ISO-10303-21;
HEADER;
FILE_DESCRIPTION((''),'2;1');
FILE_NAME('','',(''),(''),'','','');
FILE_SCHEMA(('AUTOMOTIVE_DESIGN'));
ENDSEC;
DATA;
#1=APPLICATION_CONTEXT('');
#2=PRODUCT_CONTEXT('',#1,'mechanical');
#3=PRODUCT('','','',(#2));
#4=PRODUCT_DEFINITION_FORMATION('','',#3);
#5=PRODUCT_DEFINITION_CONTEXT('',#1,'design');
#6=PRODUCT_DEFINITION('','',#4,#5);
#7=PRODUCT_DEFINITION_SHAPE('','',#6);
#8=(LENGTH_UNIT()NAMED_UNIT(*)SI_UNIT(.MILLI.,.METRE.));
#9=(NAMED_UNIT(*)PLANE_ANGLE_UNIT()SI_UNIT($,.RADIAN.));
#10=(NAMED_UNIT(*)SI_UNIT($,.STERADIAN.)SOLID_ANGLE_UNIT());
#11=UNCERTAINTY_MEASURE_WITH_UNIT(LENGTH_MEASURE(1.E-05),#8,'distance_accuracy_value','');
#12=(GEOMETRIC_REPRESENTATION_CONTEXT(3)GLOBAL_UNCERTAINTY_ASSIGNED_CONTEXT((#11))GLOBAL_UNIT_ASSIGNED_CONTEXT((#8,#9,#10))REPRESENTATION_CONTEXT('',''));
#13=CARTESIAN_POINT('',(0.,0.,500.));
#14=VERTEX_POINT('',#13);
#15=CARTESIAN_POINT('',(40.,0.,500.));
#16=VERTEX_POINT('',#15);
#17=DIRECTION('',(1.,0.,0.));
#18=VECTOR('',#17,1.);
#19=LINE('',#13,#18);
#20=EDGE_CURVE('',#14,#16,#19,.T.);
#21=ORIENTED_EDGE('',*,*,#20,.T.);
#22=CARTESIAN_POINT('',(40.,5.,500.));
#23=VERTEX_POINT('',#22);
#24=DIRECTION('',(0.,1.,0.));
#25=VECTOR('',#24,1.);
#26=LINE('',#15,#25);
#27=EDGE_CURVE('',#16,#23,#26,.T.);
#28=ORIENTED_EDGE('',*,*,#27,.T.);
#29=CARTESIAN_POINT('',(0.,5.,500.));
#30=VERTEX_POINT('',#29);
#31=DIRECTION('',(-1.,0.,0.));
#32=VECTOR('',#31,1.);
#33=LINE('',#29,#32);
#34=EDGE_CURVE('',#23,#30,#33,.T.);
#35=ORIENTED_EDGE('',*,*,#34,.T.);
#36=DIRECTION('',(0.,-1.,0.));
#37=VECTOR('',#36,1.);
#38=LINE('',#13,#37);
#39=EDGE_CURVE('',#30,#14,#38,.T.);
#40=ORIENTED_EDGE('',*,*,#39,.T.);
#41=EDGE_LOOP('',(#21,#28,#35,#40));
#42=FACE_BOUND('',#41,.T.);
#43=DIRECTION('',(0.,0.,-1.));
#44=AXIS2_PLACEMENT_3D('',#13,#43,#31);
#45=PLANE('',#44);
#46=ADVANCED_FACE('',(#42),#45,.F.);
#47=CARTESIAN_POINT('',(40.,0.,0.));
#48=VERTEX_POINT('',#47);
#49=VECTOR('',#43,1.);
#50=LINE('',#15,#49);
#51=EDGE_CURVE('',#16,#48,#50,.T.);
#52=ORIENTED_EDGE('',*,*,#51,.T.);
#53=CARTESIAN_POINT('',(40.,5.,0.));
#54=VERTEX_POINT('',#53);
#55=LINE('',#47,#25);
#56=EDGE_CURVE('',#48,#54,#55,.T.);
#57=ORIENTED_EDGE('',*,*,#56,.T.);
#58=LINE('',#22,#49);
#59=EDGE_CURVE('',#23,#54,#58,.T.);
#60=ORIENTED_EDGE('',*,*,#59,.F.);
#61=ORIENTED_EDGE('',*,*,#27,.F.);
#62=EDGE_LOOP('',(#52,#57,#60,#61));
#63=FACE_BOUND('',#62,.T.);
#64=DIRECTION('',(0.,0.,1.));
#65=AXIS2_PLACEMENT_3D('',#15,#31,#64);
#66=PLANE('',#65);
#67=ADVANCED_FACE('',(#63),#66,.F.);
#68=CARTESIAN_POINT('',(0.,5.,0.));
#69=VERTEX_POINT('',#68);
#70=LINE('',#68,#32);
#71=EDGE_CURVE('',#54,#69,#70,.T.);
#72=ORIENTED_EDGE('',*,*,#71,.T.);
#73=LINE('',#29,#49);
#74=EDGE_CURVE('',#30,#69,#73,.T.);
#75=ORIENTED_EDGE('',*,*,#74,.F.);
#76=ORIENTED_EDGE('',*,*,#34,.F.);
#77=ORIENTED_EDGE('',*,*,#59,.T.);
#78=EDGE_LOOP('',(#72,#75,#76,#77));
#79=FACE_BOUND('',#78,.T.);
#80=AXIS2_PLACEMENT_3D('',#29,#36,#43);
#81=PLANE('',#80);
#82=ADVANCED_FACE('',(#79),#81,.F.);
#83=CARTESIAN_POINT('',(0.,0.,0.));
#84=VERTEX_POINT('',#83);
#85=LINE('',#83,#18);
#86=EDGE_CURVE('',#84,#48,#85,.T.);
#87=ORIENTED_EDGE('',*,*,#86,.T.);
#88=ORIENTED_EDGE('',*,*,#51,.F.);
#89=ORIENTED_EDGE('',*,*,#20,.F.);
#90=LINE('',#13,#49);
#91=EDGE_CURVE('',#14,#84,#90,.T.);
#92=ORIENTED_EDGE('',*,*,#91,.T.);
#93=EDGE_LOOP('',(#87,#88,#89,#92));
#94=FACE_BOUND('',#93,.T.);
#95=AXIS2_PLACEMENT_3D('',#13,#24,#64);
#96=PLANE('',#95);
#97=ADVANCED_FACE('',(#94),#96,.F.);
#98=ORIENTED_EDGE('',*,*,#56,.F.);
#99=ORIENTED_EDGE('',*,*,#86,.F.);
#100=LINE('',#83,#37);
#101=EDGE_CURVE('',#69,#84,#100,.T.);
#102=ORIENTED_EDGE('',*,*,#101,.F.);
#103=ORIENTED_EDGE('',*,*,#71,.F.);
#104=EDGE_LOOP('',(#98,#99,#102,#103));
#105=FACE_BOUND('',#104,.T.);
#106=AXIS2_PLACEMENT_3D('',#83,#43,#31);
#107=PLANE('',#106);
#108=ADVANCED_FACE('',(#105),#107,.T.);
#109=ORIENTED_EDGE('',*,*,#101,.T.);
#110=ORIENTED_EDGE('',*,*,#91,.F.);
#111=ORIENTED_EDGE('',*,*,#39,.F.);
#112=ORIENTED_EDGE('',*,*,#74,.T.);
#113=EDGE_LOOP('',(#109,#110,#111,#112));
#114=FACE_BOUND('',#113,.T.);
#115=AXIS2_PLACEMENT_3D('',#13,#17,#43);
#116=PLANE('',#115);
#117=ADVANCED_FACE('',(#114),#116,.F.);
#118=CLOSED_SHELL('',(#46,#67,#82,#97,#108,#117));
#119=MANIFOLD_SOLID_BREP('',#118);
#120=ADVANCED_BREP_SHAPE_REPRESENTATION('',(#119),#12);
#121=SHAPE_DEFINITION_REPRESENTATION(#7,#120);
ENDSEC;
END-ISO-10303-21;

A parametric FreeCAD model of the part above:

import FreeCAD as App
import Part
import Sketcher

V = App.Vector
Q = App.Units.Quantity


def add_polygon(sketch, points):
    """Adds a closed chain of lines whose ends are joined by coincident constraints."""
    first, n = sketch.GeometryCount, len(points)
    for a, b in zip(points, points[1:] + points[:1]):
        sketch.addGeometry(Part.LineSegment(App.Vector(*a, 0), App.Vector(*b, 0)), False)
    for i in range(n):
        sketch.addConstraint(Sketcher.Constraint("Coincident", first + i, 2, first + (i + 1) % n, 1))

doc = App.newDocument("Part")
body = doc.addObject("PartDesign::Body", "Body")

sketch1 = body.newObject("Sketcher::SketchObject", "Sketch")
sketch1.AttachmentSupport = (doc.getObject("XY_Plane"), [""])
sketch1.MapMode = "FlatFace"
add_polygon(sketch1, [(0, 5), (0, 0), (40, 0), (40, 5)])
sketch1.addConstraint(Sketcher.Constraint("Vertical", 0))
sketch1.addConstraint(Sketcher.Constraint("Horizontal", 1))
sketch1.addConstraint(Sketcher.Constraint("Vertical", 2))
sketch1.addConstraint(Sketcher.Constraint("Horizontal", 3))
sketch1.addConstraint(Sketcher.Constraint("Coincident", 0, 2, -1, 1))
sketch1.addConstraint(Sketcher.Constraint("DistanceX", 1, 1, 1, 2, Q("40 mm")))
sketch1.addConstraint(Sketcher.Constraint("DistanceY", 0, 2, 0, 1, Q("5 mm")))
pad1 = body.newObject("PartDesign::Pad", "Pad")
pad1.Profile = sketch1
pad1.Length = 500

doc.recompute()
